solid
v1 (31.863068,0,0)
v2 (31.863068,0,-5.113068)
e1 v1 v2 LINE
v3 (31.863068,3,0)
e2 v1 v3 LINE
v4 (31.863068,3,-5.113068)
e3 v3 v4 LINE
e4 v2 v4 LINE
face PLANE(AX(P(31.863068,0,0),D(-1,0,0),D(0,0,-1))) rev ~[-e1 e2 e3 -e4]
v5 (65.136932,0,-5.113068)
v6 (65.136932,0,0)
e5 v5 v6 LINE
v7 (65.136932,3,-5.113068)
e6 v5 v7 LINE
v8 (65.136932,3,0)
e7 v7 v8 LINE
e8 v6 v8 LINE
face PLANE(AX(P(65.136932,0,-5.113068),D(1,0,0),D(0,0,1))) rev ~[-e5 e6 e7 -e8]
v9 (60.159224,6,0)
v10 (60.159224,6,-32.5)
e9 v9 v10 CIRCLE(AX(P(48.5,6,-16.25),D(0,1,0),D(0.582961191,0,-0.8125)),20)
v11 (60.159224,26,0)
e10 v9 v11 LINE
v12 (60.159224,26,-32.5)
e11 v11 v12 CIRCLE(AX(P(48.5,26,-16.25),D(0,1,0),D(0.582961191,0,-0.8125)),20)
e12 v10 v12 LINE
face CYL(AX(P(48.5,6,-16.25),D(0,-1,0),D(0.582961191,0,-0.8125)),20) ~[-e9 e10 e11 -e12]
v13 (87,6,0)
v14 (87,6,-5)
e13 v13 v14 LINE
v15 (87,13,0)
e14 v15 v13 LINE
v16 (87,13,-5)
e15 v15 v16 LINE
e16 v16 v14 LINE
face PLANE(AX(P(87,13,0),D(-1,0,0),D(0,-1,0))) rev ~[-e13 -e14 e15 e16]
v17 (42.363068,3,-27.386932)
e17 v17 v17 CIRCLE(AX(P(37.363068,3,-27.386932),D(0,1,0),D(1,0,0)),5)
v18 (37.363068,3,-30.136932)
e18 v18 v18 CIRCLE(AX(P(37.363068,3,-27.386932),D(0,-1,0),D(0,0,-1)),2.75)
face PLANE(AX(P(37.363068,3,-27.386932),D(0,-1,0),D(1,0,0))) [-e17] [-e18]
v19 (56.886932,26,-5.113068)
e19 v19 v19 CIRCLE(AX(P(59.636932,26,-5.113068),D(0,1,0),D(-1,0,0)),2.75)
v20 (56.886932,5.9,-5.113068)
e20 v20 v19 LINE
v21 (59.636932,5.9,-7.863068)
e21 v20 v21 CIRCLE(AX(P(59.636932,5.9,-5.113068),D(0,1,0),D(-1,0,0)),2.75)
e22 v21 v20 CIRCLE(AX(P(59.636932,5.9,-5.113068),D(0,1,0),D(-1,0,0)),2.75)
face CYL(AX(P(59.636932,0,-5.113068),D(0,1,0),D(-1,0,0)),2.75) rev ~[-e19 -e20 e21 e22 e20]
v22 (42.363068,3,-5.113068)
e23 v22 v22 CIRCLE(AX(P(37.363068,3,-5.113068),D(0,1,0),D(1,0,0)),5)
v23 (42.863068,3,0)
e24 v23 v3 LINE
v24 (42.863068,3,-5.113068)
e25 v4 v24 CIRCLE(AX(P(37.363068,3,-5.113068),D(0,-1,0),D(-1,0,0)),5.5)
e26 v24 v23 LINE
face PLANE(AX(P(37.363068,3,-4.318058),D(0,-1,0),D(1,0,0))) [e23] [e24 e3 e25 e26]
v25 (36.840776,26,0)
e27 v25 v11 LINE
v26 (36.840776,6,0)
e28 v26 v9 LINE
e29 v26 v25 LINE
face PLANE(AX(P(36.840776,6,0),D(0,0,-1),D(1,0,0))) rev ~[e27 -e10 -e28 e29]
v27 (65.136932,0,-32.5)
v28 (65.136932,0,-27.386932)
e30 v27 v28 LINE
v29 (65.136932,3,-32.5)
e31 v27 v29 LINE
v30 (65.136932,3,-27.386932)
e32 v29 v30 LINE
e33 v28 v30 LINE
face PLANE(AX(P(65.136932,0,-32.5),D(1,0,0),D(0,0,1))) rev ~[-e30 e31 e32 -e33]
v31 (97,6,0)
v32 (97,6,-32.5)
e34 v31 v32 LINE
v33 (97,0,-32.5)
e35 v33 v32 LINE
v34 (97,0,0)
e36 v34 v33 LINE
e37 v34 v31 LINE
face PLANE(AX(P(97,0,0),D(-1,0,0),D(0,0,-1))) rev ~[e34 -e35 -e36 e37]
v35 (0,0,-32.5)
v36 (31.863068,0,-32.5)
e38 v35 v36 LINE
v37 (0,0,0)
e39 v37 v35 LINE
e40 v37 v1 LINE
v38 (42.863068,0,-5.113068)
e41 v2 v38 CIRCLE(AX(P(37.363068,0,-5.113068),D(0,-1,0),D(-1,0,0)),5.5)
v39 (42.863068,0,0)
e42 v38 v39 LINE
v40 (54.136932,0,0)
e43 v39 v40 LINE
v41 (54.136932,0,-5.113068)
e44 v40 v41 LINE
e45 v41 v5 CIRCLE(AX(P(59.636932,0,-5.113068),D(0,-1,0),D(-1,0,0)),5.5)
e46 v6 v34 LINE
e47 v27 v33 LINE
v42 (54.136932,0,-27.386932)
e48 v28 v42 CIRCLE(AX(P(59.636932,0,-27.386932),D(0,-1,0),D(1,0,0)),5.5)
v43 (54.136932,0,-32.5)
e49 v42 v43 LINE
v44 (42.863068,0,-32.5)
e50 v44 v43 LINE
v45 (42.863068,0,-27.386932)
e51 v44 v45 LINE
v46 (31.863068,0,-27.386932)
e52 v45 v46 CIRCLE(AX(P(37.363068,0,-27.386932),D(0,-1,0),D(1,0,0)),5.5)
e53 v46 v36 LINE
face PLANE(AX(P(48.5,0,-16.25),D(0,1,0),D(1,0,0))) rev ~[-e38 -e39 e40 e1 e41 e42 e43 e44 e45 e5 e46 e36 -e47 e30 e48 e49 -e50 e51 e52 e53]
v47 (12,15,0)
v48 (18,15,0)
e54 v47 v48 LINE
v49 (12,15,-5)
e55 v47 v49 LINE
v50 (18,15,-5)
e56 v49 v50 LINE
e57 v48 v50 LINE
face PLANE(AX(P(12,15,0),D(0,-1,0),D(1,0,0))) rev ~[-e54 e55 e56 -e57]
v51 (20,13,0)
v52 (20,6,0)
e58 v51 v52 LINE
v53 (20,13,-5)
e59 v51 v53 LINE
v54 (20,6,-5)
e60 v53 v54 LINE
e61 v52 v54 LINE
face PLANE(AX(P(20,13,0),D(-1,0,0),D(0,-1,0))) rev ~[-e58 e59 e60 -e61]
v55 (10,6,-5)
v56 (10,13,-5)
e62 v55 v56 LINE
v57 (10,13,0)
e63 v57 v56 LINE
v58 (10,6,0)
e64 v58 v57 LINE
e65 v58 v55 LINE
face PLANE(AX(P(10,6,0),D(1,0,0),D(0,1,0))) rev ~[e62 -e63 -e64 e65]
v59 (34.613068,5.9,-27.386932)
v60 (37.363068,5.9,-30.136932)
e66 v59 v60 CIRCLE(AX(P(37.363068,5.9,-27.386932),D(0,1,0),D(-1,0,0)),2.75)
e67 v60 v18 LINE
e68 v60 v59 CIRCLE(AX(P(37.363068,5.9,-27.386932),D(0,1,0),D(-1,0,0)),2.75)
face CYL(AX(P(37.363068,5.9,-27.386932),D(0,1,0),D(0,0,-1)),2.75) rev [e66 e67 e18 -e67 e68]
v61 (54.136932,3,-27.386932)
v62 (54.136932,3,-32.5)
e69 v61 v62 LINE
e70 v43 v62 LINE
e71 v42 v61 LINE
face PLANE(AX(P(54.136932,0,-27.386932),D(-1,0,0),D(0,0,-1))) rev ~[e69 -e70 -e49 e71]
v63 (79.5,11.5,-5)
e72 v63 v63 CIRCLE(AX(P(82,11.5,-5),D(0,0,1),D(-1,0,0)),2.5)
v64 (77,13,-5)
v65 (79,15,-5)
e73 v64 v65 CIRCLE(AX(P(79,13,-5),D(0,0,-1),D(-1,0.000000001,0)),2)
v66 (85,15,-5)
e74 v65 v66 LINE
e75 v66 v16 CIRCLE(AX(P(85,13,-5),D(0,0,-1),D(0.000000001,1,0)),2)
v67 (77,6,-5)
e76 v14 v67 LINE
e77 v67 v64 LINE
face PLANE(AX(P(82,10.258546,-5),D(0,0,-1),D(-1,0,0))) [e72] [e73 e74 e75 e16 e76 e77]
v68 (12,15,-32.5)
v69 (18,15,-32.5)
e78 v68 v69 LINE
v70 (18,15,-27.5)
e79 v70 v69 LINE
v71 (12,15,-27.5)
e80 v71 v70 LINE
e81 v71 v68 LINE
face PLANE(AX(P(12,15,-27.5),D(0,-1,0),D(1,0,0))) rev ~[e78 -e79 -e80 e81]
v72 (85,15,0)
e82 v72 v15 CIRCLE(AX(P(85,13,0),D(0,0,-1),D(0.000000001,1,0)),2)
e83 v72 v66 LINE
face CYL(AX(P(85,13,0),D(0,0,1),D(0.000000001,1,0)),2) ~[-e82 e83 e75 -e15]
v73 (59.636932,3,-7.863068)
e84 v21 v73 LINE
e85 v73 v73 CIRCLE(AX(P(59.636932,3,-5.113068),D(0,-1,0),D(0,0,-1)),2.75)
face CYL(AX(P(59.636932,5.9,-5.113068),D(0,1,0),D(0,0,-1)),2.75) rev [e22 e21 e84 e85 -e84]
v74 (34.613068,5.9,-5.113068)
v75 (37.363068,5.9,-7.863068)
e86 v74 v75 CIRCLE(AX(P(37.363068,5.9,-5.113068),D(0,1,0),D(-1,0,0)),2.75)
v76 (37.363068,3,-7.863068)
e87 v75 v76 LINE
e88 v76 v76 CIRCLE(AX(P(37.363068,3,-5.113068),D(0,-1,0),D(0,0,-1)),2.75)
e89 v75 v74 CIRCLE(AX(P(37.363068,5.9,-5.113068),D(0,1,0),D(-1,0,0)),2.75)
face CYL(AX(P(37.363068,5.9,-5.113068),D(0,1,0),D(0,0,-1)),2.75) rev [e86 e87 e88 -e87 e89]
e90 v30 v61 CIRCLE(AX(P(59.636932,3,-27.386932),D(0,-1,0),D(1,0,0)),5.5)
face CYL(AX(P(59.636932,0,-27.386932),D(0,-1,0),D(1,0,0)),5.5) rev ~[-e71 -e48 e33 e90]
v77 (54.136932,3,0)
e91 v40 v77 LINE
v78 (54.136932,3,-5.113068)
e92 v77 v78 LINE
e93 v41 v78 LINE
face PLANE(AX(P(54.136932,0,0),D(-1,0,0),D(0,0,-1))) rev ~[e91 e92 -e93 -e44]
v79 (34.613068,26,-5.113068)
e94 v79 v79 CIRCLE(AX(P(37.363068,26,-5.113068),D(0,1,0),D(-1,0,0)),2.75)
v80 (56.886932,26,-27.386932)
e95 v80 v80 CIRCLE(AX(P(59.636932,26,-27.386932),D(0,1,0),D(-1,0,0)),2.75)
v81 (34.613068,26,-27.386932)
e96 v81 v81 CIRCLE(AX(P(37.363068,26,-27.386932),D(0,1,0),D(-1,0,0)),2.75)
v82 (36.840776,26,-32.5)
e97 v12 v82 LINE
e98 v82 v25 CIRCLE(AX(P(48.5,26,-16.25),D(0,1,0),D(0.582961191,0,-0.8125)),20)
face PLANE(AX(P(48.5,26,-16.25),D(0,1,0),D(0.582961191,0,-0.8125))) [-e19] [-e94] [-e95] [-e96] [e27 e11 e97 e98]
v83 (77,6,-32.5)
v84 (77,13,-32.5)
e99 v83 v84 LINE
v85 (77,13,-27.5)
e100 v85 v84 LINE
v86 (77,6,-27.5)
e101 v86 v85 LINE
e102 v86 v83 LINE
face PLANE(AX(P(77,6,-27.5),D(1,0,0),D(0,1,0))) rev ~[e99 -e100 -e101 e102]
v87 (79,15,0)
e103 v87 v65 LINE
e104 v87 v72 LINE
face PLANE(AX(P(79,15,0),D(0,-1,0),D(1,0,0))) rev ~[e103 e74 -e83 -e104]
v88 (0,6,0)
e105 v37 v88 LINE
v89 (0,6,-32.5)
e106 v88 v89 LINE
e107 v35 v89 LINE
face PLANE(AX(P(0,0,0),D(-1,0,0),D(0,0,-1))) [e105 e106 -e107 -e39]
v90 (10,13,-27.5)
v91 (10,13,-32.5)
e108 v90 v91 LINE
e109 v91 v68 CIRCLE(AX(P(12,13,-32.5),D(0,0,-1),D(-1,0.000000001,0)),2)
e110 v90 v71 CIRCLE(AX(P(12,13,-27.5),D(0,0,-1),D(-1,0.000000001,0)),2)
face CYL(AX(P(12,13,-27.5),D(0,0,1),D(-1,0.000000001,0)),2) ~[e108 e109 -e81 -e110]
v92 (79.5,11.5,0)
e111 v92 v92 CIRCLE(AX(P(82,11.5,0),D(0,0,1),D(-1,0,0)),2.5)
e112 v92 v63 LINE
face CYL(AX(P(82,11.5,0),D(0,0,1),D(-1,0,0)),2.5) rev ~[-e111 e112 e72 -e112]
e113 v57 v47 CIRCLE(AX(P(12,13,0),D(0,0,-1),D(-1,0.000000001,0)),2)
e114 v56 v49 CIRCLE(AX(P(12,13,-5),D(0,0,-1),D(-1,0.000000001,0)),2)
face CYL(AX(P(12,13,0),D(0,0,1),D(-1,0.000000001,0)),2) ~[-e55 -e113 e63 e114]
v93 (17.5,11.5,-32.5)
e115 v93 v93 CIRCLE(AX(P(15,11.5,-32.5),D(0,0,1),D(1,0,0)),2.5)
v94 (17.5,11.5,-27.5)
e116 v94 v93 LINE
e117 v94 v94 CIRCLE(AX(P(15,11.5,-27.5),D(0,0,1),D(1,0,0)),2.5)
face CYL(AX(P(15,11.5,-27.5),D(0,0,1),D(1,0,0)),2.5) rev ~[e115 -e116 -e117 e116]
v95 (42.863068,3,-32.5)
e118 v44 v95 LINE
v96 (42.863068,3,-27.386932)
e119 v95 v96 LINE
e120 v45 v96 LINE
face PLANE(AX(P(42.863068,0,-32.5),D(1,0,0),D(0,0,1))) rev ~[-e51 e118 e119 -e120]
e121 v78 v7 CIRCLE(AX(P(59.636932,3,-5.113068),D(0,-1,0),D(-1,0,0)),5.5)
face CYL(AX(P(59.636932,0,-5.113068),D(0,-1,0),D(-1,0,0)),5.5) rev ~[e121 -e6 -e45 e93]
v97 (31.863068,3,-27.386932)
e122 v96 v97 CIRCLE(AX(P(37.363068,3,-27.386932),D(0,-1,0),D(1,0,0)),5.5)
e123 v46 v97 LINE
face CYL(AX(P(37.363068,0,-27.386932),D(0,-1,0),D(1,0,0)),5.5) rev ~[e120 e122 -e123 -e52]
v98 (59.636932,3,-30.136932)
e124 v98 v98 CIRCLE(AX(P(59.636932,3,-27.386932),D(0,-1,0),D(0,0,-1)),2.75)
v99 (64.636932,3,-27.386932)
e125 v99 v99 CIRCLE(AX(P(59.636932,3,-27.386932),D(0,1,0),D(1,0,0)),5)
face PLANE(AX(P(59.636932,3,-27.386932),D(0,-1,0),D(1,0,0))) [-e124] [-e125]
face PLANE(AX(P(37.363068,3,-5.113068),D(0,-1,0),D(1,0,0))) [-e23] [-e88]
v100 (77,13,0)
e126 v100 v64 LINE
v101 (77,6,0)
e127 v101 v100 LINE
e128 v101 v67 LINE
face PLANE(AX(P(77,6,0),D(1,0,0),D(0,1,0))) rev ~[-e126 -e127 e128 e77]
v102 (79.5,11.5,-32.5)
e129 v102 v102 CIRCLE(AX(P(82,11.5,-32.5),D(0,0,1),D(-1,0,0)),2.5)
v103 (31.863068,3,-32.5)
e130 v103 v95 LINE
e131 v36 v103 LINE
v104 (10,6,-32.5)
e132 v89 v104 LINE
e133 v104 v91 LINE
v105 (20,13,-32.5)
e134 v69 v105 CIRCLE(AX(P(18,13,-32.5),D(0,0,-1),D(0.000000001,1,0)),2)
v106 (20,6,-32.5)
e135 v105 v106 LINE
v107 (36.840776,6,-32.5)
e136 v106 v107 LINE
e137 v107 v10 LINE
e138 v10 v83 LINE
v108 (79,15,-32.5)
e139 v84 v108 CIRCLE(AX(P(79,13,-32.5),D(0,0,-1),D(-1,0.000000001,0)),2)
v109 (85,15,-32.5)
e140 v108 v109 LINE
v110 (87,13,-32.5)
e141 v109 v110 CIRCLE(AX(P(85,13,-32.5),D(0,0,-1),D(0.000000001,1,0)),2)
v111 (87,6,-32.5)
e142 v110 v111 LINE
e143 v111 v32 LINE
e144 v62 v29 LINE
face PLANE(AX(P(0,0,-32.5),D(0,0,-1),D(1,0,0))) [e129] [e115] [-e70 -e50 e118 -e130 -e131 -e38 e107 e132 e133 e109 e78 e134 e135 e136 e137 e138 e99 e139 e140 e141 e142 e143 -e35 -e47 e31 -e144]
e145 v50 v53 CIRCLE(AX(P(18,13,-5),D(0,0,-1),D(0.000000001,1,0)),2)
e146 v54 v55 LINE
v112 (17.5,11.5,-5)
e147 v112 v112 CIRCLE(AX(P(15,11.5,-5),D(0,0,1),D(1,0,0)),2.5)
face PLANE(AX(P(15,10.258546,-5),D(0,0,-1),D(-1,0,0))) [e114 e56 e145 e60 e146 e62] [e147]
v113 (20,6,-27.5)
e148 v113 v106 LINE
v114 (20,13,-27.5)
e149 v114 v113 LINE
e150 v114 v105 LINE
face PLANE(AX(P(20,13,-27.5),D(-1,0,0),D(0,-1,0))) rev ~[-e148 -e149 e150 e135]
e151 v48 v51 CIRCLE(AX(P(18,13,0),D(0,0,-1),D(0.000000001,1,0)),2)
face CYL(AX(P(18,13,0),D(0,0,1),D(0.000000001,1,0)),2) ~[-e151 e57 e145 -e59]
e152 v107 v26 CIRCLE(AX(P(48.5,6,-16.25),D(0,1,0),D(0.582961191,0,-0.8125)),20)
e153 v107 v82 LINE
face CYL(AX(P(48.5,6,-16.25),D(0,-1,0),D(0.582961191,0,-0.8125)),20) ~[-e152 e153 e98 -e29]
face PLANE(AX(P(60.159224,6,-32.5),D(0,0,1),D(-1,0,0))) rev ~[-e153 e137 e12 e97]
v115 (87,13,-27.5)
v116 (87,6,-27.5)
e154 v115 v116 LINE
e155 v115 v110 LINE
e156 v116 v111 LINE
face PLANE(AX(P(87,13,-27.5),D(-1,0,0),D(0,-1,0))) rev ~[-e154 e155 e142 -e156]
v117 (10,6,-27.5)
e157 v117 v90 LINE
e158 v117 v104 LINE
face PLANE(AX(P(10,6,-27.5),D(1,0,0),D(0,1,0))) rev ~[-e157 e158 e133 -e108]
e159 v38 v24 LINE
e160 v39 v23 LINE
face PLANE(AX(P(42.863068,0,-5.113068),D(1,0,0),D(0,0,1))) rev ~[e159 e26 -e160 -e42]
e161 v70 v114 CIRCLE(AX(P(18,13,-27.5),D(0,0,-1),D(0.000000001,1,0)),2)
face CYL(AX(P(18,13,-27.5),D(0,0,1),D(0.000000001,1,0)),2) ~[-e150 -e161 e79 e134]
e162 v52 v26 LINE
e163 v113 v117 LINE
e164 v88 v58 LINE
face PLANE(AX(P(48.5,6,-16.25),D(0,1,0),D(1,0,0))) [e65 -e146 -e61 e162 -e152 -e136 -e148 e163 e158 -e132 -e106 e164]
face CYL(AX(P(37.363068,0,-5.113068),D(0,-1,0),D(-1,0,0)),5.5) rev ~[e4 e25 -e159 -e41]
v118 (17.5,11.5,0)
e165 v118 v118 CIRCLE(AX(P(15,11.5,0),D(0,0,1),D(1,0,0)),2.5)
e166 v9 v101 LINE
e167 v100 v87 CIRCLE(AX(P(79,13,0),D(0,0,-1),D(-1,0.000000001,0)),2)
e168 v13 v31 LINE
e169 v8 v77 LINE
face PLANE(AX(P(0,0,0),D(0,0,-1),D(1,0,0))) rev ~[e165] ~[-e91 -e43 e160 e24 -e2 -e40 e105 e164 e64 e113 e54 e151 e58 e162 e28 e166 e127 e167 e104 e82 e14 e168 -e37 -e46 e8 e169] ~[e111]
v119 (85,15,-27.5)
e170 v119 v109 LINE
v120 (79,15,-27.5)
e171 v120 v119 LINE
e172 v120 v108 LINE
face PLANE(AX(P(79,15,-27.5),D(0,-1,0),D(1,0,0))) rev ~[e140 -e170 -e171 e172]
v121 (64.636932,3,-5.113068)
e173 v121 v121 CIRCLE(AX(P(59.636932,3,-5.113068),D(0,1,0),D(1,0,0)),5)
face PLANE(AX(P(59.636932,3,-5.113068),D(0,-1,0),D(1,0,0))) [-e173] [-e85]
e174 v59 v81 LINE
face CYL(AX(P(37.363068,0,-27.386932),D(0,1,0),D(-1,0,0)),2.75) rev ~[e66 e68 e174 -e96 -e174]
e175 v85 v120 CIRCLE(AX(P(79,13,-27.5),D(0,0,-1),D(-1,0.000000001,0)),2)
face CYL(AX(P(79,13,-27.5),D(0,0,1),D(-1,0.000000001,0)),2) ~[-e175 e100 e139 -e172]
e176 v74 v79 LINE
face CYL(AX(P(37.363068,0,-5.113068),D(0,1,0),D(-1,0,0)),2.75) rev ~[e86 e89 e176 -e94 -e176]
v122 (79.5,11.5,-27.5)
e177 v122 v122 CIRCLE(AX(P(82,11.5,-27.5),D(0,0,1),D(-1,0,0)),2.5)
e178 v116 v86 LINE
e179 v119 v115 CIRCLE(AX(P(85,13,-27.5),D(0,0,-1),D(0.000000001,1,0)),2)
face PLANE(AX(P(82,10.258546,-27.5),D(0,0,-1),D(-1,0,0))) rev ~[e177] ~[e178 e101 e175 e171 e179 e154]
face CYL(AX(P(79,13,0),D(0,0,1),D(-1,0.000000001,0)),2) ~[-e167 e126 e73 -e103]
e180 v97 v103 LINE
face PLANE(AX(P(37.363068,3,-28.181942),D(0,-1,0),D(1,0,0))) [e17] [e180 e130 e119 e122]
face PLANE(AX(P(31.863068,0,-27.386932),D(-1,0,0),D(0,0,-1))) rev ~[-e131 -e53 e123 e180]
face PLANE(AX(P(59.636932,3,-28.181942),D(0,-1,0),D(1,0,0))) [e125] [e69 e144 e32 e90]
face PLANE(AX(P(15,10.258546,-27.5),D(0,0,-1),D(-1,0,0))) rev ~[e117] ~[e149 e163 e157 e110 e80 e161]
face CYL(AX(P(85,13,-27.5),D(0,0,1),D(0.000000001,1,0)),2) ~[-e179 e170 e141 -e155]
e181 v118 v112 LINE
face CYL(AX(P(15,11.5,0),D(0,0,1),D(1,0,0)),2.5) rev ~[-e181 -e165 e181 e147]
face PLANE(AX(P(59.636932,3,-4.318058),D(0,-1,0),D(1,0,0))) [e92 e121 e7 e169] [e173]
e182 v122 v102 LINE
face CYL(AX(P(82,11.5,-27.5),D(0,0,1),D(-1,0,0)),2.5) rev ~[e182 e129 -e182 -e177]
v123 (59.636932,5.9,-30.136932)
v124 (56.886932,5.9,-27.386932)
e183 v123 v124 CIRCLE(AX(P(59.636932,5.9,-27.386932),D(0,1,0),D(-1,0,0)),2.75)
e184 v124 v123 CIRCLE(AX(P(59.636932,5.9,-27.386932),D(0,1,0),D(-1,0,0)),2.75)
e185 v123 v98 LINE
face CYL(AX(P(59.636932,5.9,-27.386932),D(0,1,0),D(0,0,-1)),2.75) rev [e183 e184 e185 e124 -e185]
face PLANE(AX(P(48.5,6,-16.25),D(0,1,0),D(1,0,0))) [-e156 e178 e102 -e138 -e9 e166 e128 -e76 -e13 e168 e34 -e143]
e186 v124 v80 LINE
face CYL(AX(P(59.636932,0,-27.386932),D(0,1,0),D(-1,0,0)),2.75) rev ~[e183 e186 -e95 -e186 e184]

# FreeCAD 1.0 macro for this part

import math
import FreeCAD as App
import Part
import Sketcher
Q = App.Units.Quantity

doc = App.newDocument("Part")
params = doc.addObject("Spreadsheet::Sheet", "Params")
for row, (alias, value) in enumerate([
    ("sketch1_width", "97 mm"),
    ("sketch1_height", "32.5 mm"),
    ("pad1_length", "6 mm"),
    ("sketch2_diameter", "40 mm"),
    ("pad2_length", "20 mm"),
    ("sketch3_diameter", "5.5 mm"),
    ("hole_diameter", "5.5 mm"),
    ("hole_cbore_diameter", "10 mm"),
    ("hole_cbore_depth", "5.9 mm"),
    ("sketch4_diameter", "5 mm"),
    ("sketch4_radius", "2 mm"),
    ("sketch4_width", "10 mm"),
    ("sketch4_height", "7 mm"),
    ("pad3_length", "5 mm"),
    ("sketch5_diameter", "5 mm"),
    ("sketch5_radius", "2 mm"),
    ("sketch5_width", "10 mm"),
    ("sketch5_height", "7 mm"),
    ("pad4_length", "5 mm"),
    ("sketch6_radius", "5.5 mm"),
    ("pocket1_length", "3 mm"),
    ("sketch7_diameter", "10 mm"),
    ("sketch7_diameter2", "5.5 mm"),
    ("pad5_length", "2.9 mm"),
    ("sketch8_radius", "20 mm"),
    ("pocket2_length", "20 mm"),
], start=1):
    params.set(f"A{row}", alias)
    params.set(f"B{row}", "=" + value)
    params.setAlias(f"B{row}", alias)

body = doc.addObject("PartDesign::Body", "Body")

sketch1 = body.newObject("Sketcher::SketchObject", "Sketch")
sketch1.AttachmentSupport = (doc.getObject("XZ_Plane"), [""])
sketch1.MapMode = "FlatFace"
sketch1.addGeometry(Part.LineSegment(App.Vector(0, -32, 0), App.Vector(0, 0, 0)), False)
sketch1.addGeometry(Part.LineSegment(App.Vector(0, 0, 0), App.Vector(97, 0, 0)), False)
sketch1.addGeometry(Part.LineSegment(App.Vector(97, 0, 0), App.Vector(97, -32, 0)), False)
sketch1.addGeometry(Part.LineSegment(App.Vector(97, -32, 0), App.Vector(0, -32, 0)), False)
sketch1.addConstraint(Sketcher.Constraint("Coincident", 0, 2, 1, 1))
sketch1.addConstraint(Sketcher.Constraint("Coincident", 1, 2, 2, 1))
sketch1.addConstraint(Sketcher.Constraint("Coincident", 2, 2, 3, 1))
sketch1.addConstraint(Sketcher.Constraint("Coincident", 3, 2, 0, 1))
sketch1.addConstraint(Sketcher.Constraint("Vertical", 0))
sketch1.addConstraint(Sketcher.Constraint("Horizontal", 1))
sketch1.addConstraint(Sketcher.Constraint("Vertical", 2))
sketch1.addConstraint(Sketcher.Constraint("Horizontal", 3))
sketch1.addConstraint(Sketcher.Constraint("Coincident", 0, 2, -1, 1))
sketch1.addConstraint(Sketcher.Constraint("DistanceX", 1, 1, 1, 2, Q("97 mm")))
sketch1.addConstraint(Sketcher.Constraint("DistanceY", 0, 1, 0, 2, Q("32.5 mm")))
sketch1.setExpression("Constraints[9]", "Params.sketch1_width")
sketch1.setExpression("Constraints[10]", "Params.sketch1_height")
pad1 = body.newObject("PartDesign::Pad", "Pad")
pad1.Profile = sketch1
pad1.setExpression("Length", "Params.pad1_length")
pad1.Reversed = True

sketch2 = body.newObject("Sketcher::SketchObject", "Sketch001")
sketch2.AttachmentSupport = (doc.getObject("XZ_Plane"), [""])
sketch2.MapMode = "FlatFace"
sketch2.AttachmentOffset = App.Placement(App.Vector(0, 0, -6), App.Rotation())
sketch2.addGeometry(Part.Circle(App.Vector(48, -16, 0), App.Vector(0, 0, 1), 20), False)
sketch2.addConstraint(Sketcher.Constraint("Diameter", 0, Q("40 mm")))
sketch2.addConstraint(Sketcher.Constraint("DistanceX", -1, 1, 0, 3, Q("48.5 mm")))
sketch2.addConstraint(Sketcher.Constraint("DistanceY", 0, 3, -1, 1, Q("16.25 mm")))
sketch2.setExpression("Constraints[0]", "Params.sketch2_diameter")
pad2 = body.newObject("PartDesign::Pad", "Pad001")
pad2.Profile = sketch2
pad2.setExpression("Length", "Params.pad2_length")
pad2.Reversed = True

sketch3 = body.newObject("Sketcher::SketchObject", "Sketch002")
sketch3.AttachmentSupport = (doc.getObject("XZ_Plane"), [""])
sketch3.MapMode = "FlatFace"
sketch3.addGeometry(Part.Circle(App.Vector(37.4, -5.1, 0), App.Vector(0, 0, 1), 2.8), False)
sketch3.addGeometry(Part.Circle(App.Vector(59.6, -5.1, 0), App.Vector(0, 0, 1), 2.8), False)
sketch3.addGeometry(Part.Circle(App.Vector(59.6, -27.4, 0), App.Vector(0, 0, 1), 2.8), False)
sketch3.addGeometry(Part.Circle(App.Vector(37.4, -27.4, 0), App.Vector(0, 0, 1), 2.8), False)
sketch3.addConstraint(Sketcher.Constraint("Equal", 0, 1))
sketch3.addConstraint(Sketcher.Constraint("Equal", 1, 2))
sketch3.addConstraint(Sketcher.Constraint("Equal", 2, 3))
sketch3.addConstraint(Sketcher.Constraint("Horizontal", 0, 3, 1, 3))
sketch3.addConstraint(Sketcher.Constraint("Horizontal", 2, 3, 3, 3))
sketch3.addConstraint(Sketcher.Constraint("Vertical", 1, 3, 2, 3))
sketch3.addConstraint(Sketcher.Constraint("Vertical", 0, 3, 3, 3))
sketch3.addConstraint(Sketcher.Constraint("Diameter", 0, Q("5.5 mm")))
sketch3.addConstraint(Sketcher.Constraint("DistanceX", -1, 1, 0, 3, Q("37.363068 mm")))
sketch3.addConstraint(Sketcher.Constraint("DistanceY", 0, 3, -1, 1, Q("5.113068 mm")))
sketch3.addConstraint(Sketcher.Constraint("DistanceX", -1, 1, 1, 3, Q("59.636932 mm")))
sketch3.addConstraint(Sketcher.Constraint("DistanceY", 2, 3, -1, 1, Q("27.386932 mm")))
sketch3.setExpression("Constraints[7]", "Params.sketch3_diameter")
doc.recompute()
hole = body.newObject("PartDesign::Hole", "Hole")
hole.Profile = sketch3
hole.ThreadType = "None"
hole.setExpression("Diameter", "Params.hole_diameter")
hole.DepthType = "ThroughAll"
hole.HoleCutType = "Counterbore"
hole.setExpression("HoleCutDiameter", "Params.hole_cbore_diameter")
hole.setExpression("HoleCutDepth", "Params.hole_cbore_depth")

sketch4 = body.newObject("Sketcher::SketchObject", "Sketch003")
sketch4.AttachmentSupport = (doc.getObject("XY_Plane"), [""])
sketch4.MapMode = "FlatFace"
sketch4.addGeometry(Part.LineSegment(App.Vector(77, 6, 0), App.Vector(87, 6, 0)), False)
sketch4.addGeometry(Part.LineSegment(App.Vector(87, 6, 0), App.Vector(87, 13, 0)), False)
sketch4.addGeometry(Part.ArcOfCircle(Part.Circle(App.Vector(85, 13, 0), App.Vector(0, 0, 1), 2), math.radians(0), math.radians(90)), False)
sketch4.addGeometry(Part.LineSegment(App.Vector(85, 15, 0), App.Vector(79, 15, 0)), False)
sketch4.addGeometry(Part.ArcOfCircle(Part.Circle(App.Vector(79, 13, 0), App.Vector(0, 0, 1), 2), math.radians(90), math.radians(180)), False)
sketch4.addGeometry(Part.LineSegment(App.Vector(77, 13, 0), App.Vector(77, 6, 0)), False)
sketch4.addGeometry(Part.Circle(App.Vector(82, 11.5, 0), App.Vector(0, 0, 1), 2.5), False)
sketch4.addGeometry(Part.LineSegment(App.Vector(10, 13, 0), App.Vector(10, 6, 0)), False)
sketch4.addGeometry(Part.LineSegment(App.Vector(10, 6, 0), App.Vector(20, 6, 0)), False)
sketch4.addGeometry(Part.LineSegment(App.Vector(20, 6, 0), App.Vector(20, 13, 0)), False)
sketch4.addGeometry(Part.ArcOfCircle(Part.Circle(App.Vector(18, 13, 0), App.Vector(0, 0, 1), 2), math.radians(0), math.radians(90)), False)
sketch4.addGeometry(Part.LineSegment(App.Vector(18, 15, 0), App.Vector(12, 15, 0)), False)
sketch4.addGeometry(Part.ArcOfCircle(Part.Circle(App.Vector(12, 13, 0), App.Vector(0, 0, 1), 2), math.radians(90), math.radians(180)), False)
sketch4.addGeometry(Part.Circle(App.Vector(15, 11.5, 0), App.Vector(0, 0, 1), 2.5), False)
sketch4.addConstraint(Sketcher.Constraint("Coincident", 0, 2, 1, 1))
sketch4.addConstraint(Sketcher.Constraint("Tangent", 1, 2, 2, 1))
sketch4.addConstraint(Sketcher.Constraint("Tangent", 2, 2, 3, 1))
sketch4.addConstraint(Sketcher.Constraint("Tangent", 3, 2, 4, 1))
sketch4.addConstraint(Sketcher.Constraint("Tangent", 4, 2, 5, 1))
sketch4.addConstraint(Sketcher.Constraint("Coincident", 5, 2, 0, 1))
sketch4.addConstraint(Sketcher.Constraint("Coincident", 7, 2, 8, 1))
sketch4.addConstraint(Sketcher.Constraint("Coincident", 8, 2, 9, 1))
sketch4.addConstraint(Sketcher.Constraint("Tangent", 9, 2, 10, 1))
sketch4.addConstraint(Sketcher.Constraint("Tangent", 10, 2, 11, 1))
sketch4.addConstraint(Sketcher.Constraint("Tangent", 11, 2, 12, 1))
sketch4.addConstraint(Sketcher.Constraint("Tangent", 12, 2, 7, 1))
sketch4.addConstraint(Sketcher.Constraint("Horizontal", 0))
sketch4.addConstraint(Sketcher.Constraint("Vertical", 1))
sketch4.addConstraint(Sketcher.Constraint("Horizontal", 3))
sketch4.addConstraint(Sketcher.Constraint("Vertical", 5))
sketch4.addConstraint(Sketcher.Constraint("Vertical", 7))
sketch4.addConstraint(Sketcher.Constraint("Horizontal", 8))
sketch4.addConstraint(Sketcher.Constraint("Vertical", 9))
sketch4.addConstraint(Sketcher.Constraint("Horizontal", 11))
sketch4.addConstraint(Sketcher.Constraint("Equal", 2, 4))
sketch4.addConstraint(Sketcher.Constraint("Equal", 4, 10))
sketch4.addConstraint(Sketcher.Constraint("Equal", 10, 12))
sketch4.addConstraint(Sketcher.Constraint("Equal", 6, 13))
sketch4.addConstraint(Sketcher.Constraint("Horizontal", 4, 3, 10, 3))
sketch4.addConstraint(Sketcher.Constraint("Horizontal", 6, 3, 13, 3))
sketch4.addConstraint(Sketcher.Constraint("Horizontal", 5, 2, 7, 2))
sketch4.addConstraint(Sketcher.Constraint("Equal", 0, 8))
sketch4.addConstraint(Sketcher.Constraint("Diameter", 6, Q("5 mm")))
sketch4.addConstraint(Sketcher.Constraint("Radius", 2, Q("2 mm")))
sketch4.addConstraint(Sketcher.Constraint("DistanceX", 0, 1, 0, 2, Q("10 mm")))
sketch4.addConstraint(Sketcher.Constraint("DistanceY", 1, 1, 1, 2, Q("7 mm")))
sketch4.addConstraint(Sketcher.Constraint("DistanceX", -1, 1, 2, 3, Q("85 mm")))
sketch4.addConstraint(Sketcher.Constraint("DistanceY", -1, 1, 2, 3, Q("13 mm")))
sketch4.addConstraint(Sketcher.Constraint("DistanceX", -1, 1, 6, 3, Q("82 mm")))
sketch4.addConstraint(Sketcher.Constraint("DistanceX", -1, 1, 10, 3, Q("18 mm")))
sketch4.addConstraint(Sketcher.Constraint("DistanceX", -1, 1, 13, 3, Q("15 mm")))
sketch4.addConstraint(Sketcher.Constraint("DistanceY", -1, 1, 6, 3, Q("11.5 mm")))
sketch4.setExpression("Constraints[28]", "Params.sketch4_diameter")
sketch4.setExpression("Constraints[29]", "Params.sketch4_radius")
sketch4.setExpression("Constraints[30]", "Params.sketch4_width")
sketch4.setExpression("Constraints[31]", "Params.sketch4_height")
pad3 = body.newObject("PartDesign::Pad", "Pad002")
pad3.Profile = sketch4
pad3.setExpression("Length", "Params.pad3_length")
pad3.Reversed = True

sketch5 = body.newObject("Sketcher::SketchObject", "Sketch004")
sketch5.AttachmentSupport = (doc.getObject("XY_Plane"), [""])
sketch5.MapMode = "FlatFace"
sketch5.AttachmentOffset = App.Placement(App.Vector(0, 0, -27.5), App.Rotation())
sketch5.addGeometry(Part.LineSegment(App.Vector(77, 6, 0), App.Vector(87, 6, 0)), False)
sketch5.addGeometry(Part.LineSegment(App.Vector(87, 6, 0), App.Vector(87, 13, 0)), False)
sketch5.addGeometry(Part.ArcOfCircle(Part.Circle(App.Vector(85, 13, 0), App.Vector(0, 0, 1), 2), math.radians(0), math.radians(90)), False)
sketch5.addGeometry(Part.LineSegment(App.Vector(85, 15, 0), App.Vector(79, 15, 0)), False)
sketch5.addGeometry(Part.ArcOfCircle(Part.Circle(App.Vector(79, 13, 0), App.Vector(0, 0, 1), 2), math.radians(90), math.radians(180)), False)
sketch5.addGeometry(Part.LineSegment(App.Vector(77, 13, 0), App.Vector(77, 6, 0)), False)
sketch5.addGeometry(Part.Circle(App.Vector(82, 11.5, 0), App.Vector(0, 0, 1), 2.5), False)
sketch5.addGeometry(Part.LineSegment(App.Vector(10, 13, 0), App.Vector(10, 6, 0)), False)
sketch5.addGeometry(Part.LineSegment(App.Vector(10, 6, 0), App.Vector(20, 6, 0)), False)
sketch5.addGeometry(Part.LineSegment(App.Vector(20, 6, 0), App.Vector(20, 13, 0)), False)
sketch5.addGeometry(Part.ArcOfCircle(Part.Circle(App.Vector(18, 13, 0), App.Vector(0, 0, 1), 2), math.radians(0), math.radians(90)), False)
sketch5.addGeometry(Part.LineSegment(App.Vector(18, 15, 0), App.Vector(12, 15, 0)), False)
sketch5.addGeometry(Part.ArcOfCircle(Part.Circle(App.Vector(12, 13, 0), App.Vector(0, 0, 1), 2), math.radians(90), math.radians(180)), False)
sketch5.addGeometry(Part.Circle(App.Vector(15, 11.5, 0), App.Vector(0, 0, 1), 2.5), False)
sketch5.addConstraint(Sketcher.Constraint("Coincident", 0, 2, 1, 1))
sketch5.addConstraint(Sketcher.Constraint("Tangent", 1, 2, 2, 1))
sketch5.addConstraint(Sketcher.Constraint("Tangent", 2, 2, 3, 1))
sketch5.addConstraint(Sketcher.Constraint("Tangent", 3, 2, 4, 1))
sketch5.addConstraint(Sketcher.Constraint("Tangent", 4, 2, 5, 1))
sketch5.addConstraint(Sketcher.Constraint("Coincident", 5, 2, 0, 1))
sketch5.addConstraint(Sketcher.Constraint("Coincident", 7, 2, 8, 1))
sketch5.addConstraint(Sketcher.Constraint("Coincident", 8, 2, 9, 1))
sketch5.addConstraint(Sketcher.Constraint("Tangent", 9, 2, 10, 1))
sketch5.addConstraint(Sketcher.Constraint("Tangent", 10, 2, 11, 1))
sketch5.addConstraint(Sketcher.Constraint("Tangent", 11, 2, 12, 1))
sketch5.addConstraint(Sketcher.Constraint("Tangent", 12, 2, 7, 1))
sketch5.addConstraint(Sketcher.Constraint("Horizontal", 0))
sketch5.addConstraint(Sketcher.Constraint("Vertical", 1))
sketch5.addConstraint(Sketcher.Constraint("Horizontal", 3))
sketch5.addConstraint(Sketcher.Constraint("Vertical", 5))
sketch5.addConstraint(Sketcher.Constraint("Vertical", 7))
sketch5.addConstraint(Sketcher.Constraint("Horizontal", 8))
sketch5.addConstraint(Sketcher.Constraint("Vertical", 9))
sketch5.addConstraint(Sketcher.Constraint("Horizontal", 11))
sketch5.addConstraint(Sketcher.Constraint("Equal", 2, 4))
sketch5.addConstraint(Sketcher.Constraint("Equal", 4, 10))
sketch5.addConstraint(Sketcher.Constraint("Equal", 10, 12))
sketch5.addConstraint(Sketcher.Constraint("Equal", 6, 13))
sketch5.addConstraint(Sketcher.Constraint("Horizontal", 4, 3, 10, 3))
sketch5.addConstraint(Sketcher.Constraint("Horizontal", 6, 3, 13, 3))
sketch5.addConstraint(Sketcher.Constraint("Horizontal", 5, 2, 7, 2))
sketch5.addConstraint(Sketcher.Constraint("Equal", 0, 8))
sketch5.addConstraint(Sketcher.Constraint("Diameter", 6, Q("5 mm")))
sketch5.addConstraint(Sketcher.Constraint("Radius", 2, Q("2 mm")))
sketch5.addConstraint(Sketcher.Constraint("DistanceX", 0, 1, 0, 2, Q("10 mm")))
sketch5.addConstraint(Sketcher.Constraint("DistanceY", 1, 1, 1, 2, Q("7 mm")))
sketch5.addConstraint(Sketcher.Constraint("DistanceX", -1, 1, 2, 3, Q("85 mm")))
sketch5.addConstraint(Sketcher.Constraint("DistanceY", -1, 1, 2, 3, Q("13 mm")))
sketch5.addConstraint(Sketcher.Constraint("DistanceX", -1, 1, 6, 3, Q("82 mm")))
sketch5.addConstraint(Sketcher.Constraint("DistanceX", -1, 1, 10, 3, Q("18 mm")))
sketch5.addConstraint(Sketcher.Constraint("DistanceX", -1, 1, 13, 3, Q("15 mm")))
sketch5.addConstraint(Sketcher.Constraint("DistanceY", -1, 1, 6, 3, Q("11.5 mm")))
sketch5.setExpression("Constraints[28]", "Params.sketch5_diameter")
sketch5.setExpression("Constraints[29]", "Params.sketch5_radius")
sketch5.setExpression("Constraints[30]", "Params.sketch5_width")
sketch5.setExpression("Constraints[31]", "Params.sketch5_height")
pad4 = body.newObject("PartDesign::Pad", "Pad003")
pad4.Profile = sketch5
pad4.setExpression("Length", "Params.pad4_length")
pad4.Reversed = True

sketch6 = body.newObject("Sketcher::SketchObject", "Sketch005")
sketch6.AttachmentSupport = (doc.getObject("XZ_Plane"), [""])
sketch6.MapMode = "FlatFace"
sketch6.addGeometry(Part.ArcOfCircle(Part.Circle(App.Vector(37, -27, 0), App.Vector(0, 0, 1), 6), math.radians(0), math.radians(180)), False)
sketch6.addGeometry(Part.LineSegment(App.Vector(32, -27, 0), App.Vector(32, -32, 0)), False)
sketch6.addGeometry(Part.LineSegment(App.Vector(32, -32, 0), App.Vector(43, -32, 0)), False)
sketch6.addGeometry(Part.LineSegment(App.Vector(43, -32, 0), App.Vector(43, -27, 0)), False)
sketch6.addGeometry(Part.LineSegment(App.Vector(54, -27, 0), App.Vector(54, -32, 0)), False)
sketch6.addGeometry(Part.LineSegment(App.Vector(54, -32, 0), App.Vector(65, -32, 0)), False)
sketch6.addGeometry(Part.LineSegment(App.Vector(65, -32, 0), App.Vector(65, -27, 0)), False)
sketch6.addGeometry(Part.ArcOfCircle(Part.Circle(App.Vector(60, -27, 0), App.Vector(0, 0, 1), 6), math.radians(0), math.radians(180)), False)
sketch6.addGeometry(Part.LineSegment(App.Vector(54, 0, 0), App.Vector(54, -5, 0)), False)
sketch6.addGeometry(Part.ArcOfCircle(Part.Circle(App.Vector(60, -5, 0), App.Vector(0, 0, 1), 6), math.radians(180), math.radians(360)), False)
sketch6.addGeometry(Part.LineSegment(App.Vector(65, -5, 0), App.Vector(65, 0, 0)), False)
sketch6.addGeometry(Part.LineSegment(App.Vector(65, 0, 0), App.Vector(54, 0, 0)), False)
sketch6.addGeometry(Part.LineSegment(App.Vector(43, -5, 0), App.Vector(43, 0, 0)), False)
sketch6.addGeometry(Part.LineSegment(App.Vector(43, 0, 0), App.Vector(32, 0, 0)), False)
sketch6.addGeometry(Part.LineSegment(App.Vector(32, 0, 0), App.Vector(32, -5, 0)), False)
sketch6.addGeometry(Part.ArcOfCircle(Part.Circle(App.Vector(37, -5, 0), App.Vector(0, 0, 1), 6), math.radians(180), math.radians(360)), False)
sketch6.addConstraint(Sketcher.Constraint("Tangent", 0, 2, 1, 1))
sketch6.addConstraint(Sketcher.Constraint("Coincident", 1, 2, 2, 1))
sketch6.addConstraint(Sketcher.Constraint("Coincident", 2, 2, 3, 1))
sketch6.addConstraint(Sketcher.Constraint("Tangent", 3, 2, 0, 1))
sketch6.addConstraint(Sketcher.Constraint("Coincident", 4, 2, 5, 1))
sketch6.addConstraint(Sketcher.Constraint("Coincident", 5, 2, 6, 1))
sketch6.addConstraint(Sketcher.Constraint("Tangent", 6, 2, 7, 1))
sketch6.addConstraint(Sketcher.Constraint("Tangent", 7, 2, 4, 1))
sketch6.addConstraint(Sketcher.Constraint("Tangent", 8, 2, 9, 1))
sketch6.addConstraint(Sketcher.Constraint("Tangent", 9, 2, 10, 1))
sketch6.addConstraint(Sketcher.Constraint("Coincident", 10, 2, 11, 1))
sketch6.addConstraint(Sketcher.Constraint("Coincident", 11, 2, 8, 1))
sketch6.addConstraint(Sketcher.Constraint("Coincident", 12, 2, 13, 1))
sketch6.addConstraint(Sketcher.Constraint("Coincident", 13, 2, 14, 1))
sketch6.addConstraint(Sketcher.Constraint("Tangent", 14, 2, 15, 1))
sketch6.addConstraint(Sketcher.Constraint("Tangent", 15, 2, 12, 1))
sketch6.addConstraint(Sketcher.Constraint("Vertical", 1))
sketch6.addConstraint(Sketcher.Constraint("Horizontal", 2))
sketch6.addConstraint(Sketcher.Constraint("Vertical", 3))
sketch6.addConstraint(Sketcher.Constraint("Vertical", 4))
sketch6.addConstraint(Sketcher.Constraint("Horizontal", 5))
sketch6.addConstraint(Sketcher.Constraint("Vertical", 6))
sketch6.addConstraint(Sketcher.Constraint("Vertical", 8))
sketch6.addConstraint(Sketcher.Constraint("Vertical", 10))
sketch6.addConstraint(Sketcher.Constraint("Horizontal", 11))
sketch6.addConstraint(Sketcher.Constraint("Vertical", 12))
sketch6.addConstraint(Sketcher.Constraint("Horizontal", 13))
sketch6.addConstraint(Sketcher.Constraint("Vertical", 14))
sketch6.addConstraint(Sketcher.Constraint("Equal", 0, 7))
sketch6.addConstraint(Sketcher.Constraint("Equal", 7, 9))
sketch6.addConstraint(Sketcher.Constraint("Equal", 9, 15))
sketch6.addConstraint(Sketcher.Constraint("PointOnObject", 10, 2, -1))
sketch6.addConstraint(Sketcher.Constraint("PointOnObject", 12, 2, -1))
sketch6.addConstraint(Sketcher.Constraint("Horizontal", 0, 3, 7, 3))
sketch6.addConstraint(Sketcher.Constraint("Horizontal", 9, 3, 15, 3))
sketch6.addConstraint(Sketcher.Constraint("Horizontal", 2, 2, 4, 2))
sketch6.addConstraint(Sketcher.Constraint("Vertical", 7, 3, 9, 3))
sketch6.addConstraint(Sketcher.Constraint("Vertical", 0, 3, 15, 3))
sketch6.addConstraint(Sketcher.Constraint("Equal", 6, 8))
sketch6.addConstraint(Sketcher.Constraint("Radius", 0, Q("5.5 mm")))
sketch6.addConstraint(Sketcher.Constraint("DistanceY", 1, 2, -1, 1, Q("32.5 mm")))
sketch6.addConstraint(Sketcher.Constraint("DistanceY", 1, 2, 1, 1, Q("5.113068 mm")))
sketch6.addConstraint(Sketcher.Constraint("DistanceX", -1, 1, 0, 3, Q("37.363068 mm")))
sketch6.addConstraint(Sketcher.Constraint("DistanceX", -1, 1, 7, 3, Q("59.636932 mm")))
sketch6.setExpression("Constraints[39]", "Params.sketch6_radius")
pocket1 = body.newObject("PartDesign::Pocket", "Pocket")
pocket1.Profile = sketch6
pocket1.setExpression("Length", "Params.pocket1_length")

sketch7 = body.newObject("Sketcher::SketchObject", "Sketch006")
sketch7.AttachmentSupport = (doc.getObject("XZ_Plane"), [""])
sketch7.MapMode = "FlatFace"
sketch7.AttachmentOffset = App.Placement(App.Vector(0, 0, -5.9), App.Rotation())
sketch7.addGeometry(Part.Circle(App.Vector(37.4, -27.4, 0), App.Vector(0, 0, 1), 5), False)
sketch7.addGeometry(Part.Circle(App.Vector(37.4, -27.4, 0), App.Vector(0, 0, 1), 2.8), False)
sketch7.addGeometry(Part.Circle(App.Vector(37.4, -5.1, 0), App.Vector(0, 0, 1), 5), False)
sketch7.addGeometry(Part.Circle(App.Vector(37.4, -5.1, 0), App.Vector(0, 0, 1), 2.8), False)
sketch7.addGeometry(Part.Circle(App.Vector(59.6, -5.1, 0), App.Vector(0, 0, 1), 5), False)
sketch7.addGeometry(Part.Circle(App.Vector(59.6, -5.1, 0), App.Vector(0, 0, 1), 2.8), False)
sketch7.addGeometry(Part.Circle(App.Vector(59.6, -27.4, 0), App.Vector(0, 0, 1), 5), False)
sketch7.addGeometry(Part.Circle(App.Vector(59.6, -27.4, 0), App.Vector(0, 0, 1), 2.8), False)
sketch7.addConstraint(Sketcher.Constraint("Coincident", 1, 3, 0, 3))
sketch7.addConstraint(Sketcher.Constraint("Coincident", 3, 3, 2, 3))
sketch7.addConstraint(Sketcher.Constraint("Coincident", 5, 3, 4, 3))
sketch7.addConstraint(Sketcher.Constraint("Coincident", 7, 3, 6, 3))
sketch7.addConstraint(Sketcher.Constraint("Equal", 0, 2))
sketch7.addConstraint(Sketcher.Constraint("Equal", 1, 3))
sketch7.addConstraint(Sketcher.Constraint("Equal", 2, 4))
sketch7.addConstraint(Sketcher.Constraint("Equal", 3, 5))
sketch7.addConstraint(Sketcher.Constraint("Equal", 4, 6))
sketch7.addConstraint(Sketcher.Constraint("Equal", 5, 7))
sketch7.addConstraint(Sketcher.Constraint("Horizontal", 3, 3, 4, 3))
sketch7.addConstraint(Sketcher.Constraint("Horizontal", 1, 3, 6, 3))
sketch7.addConstraint(Sketcher.Constraint("Vertical", 1, 3, 2, 3))
sketch7.addConstraint(Sketcher.Constraint("Vertical", 5, 3, 6, 3))
sketch7.addConstraint(Sketcher.Constraint("Diameter", 0, Q("10 mm")))
sketch7.addConstraint(Sketcher.Constraint("Diameter", 1, Q("5.5 mm")))
sketch7.addConstraint(Sketcher.Constraint("DistanceX", -1, 1, 0, 3, Q("37.363068 mm")))
sketch7.addConstraint(Sketcher.Constraint("DistanceY", 0, 3, -1, 1, Q("27.386932 mm")))
sketch7.addConstraint(Sketcher.Constraint("DistanceY", 2, 3, -1, 1, Q("5.113068 mm")))
sketch7.addConstraint(Sketcher.Constraint("DistanceX", -1, 1, 4, 3, Q("59.636932 mm")))
sketch7.setExpression("Constraints[14]", "Params.sketch7_diameter")
sketch7.setExpression("Constraints[15]", "Params.sketch7_diameter2")
pad5 = body.newObject("PartDesign::Pad", "Pad004")
pad5.Profile = sketch7
pad5.setExpression("Length", "Params.pad5_length")

sketch8 = body.newObject("Sketcher::SketchObject", "Sketch007")
sketch8.AttachmentSupport = (doc.getObject("XZ_Plane"), [""])
sketch8.MapMode = "FlatFace"
sketch8.AttachmentOffset = App.Placement(App.Vector(0, 0, -6), App.Rotation())
sketch8.addGeometry(Part.LineSegment(App.Vector(37, 0, 0), App.Vector(60, 0, 0)), False)
sketch8.addGeometry(Part.ArcOfCircle(Part.Circle(App.Vector(48, -16, 0), App.Vector(0, 0, 1), 20), math.radians(54), math.radians(126)), False)
sketch8.addGeometry(Part.LineSegment(App.Vector(60, -32, 0), App.Vector(37, -32, 0)), False)
sketch8.addGeometry(Part.ArcOfCircle(Part.Circle(App.Vector(48, -16, 0), App.Vector(0, 0, 1), 20), math.radians(-126), math.radians(-54)), False)
sketch8.addConstraint(Sketcher.Constraint("Coincident", 0, 1, 1, 2))
sketch8.addConstraint(Sketcher.Constraint("Coincident", 1, 1, 0, 2))
sketch8.addConstraint(Sketcher.Constraint("Coincident", 2, 1, 3, 2))
sketch8.addConstraint(Sketcher.Constraint("Coincident", 3, 1, 2, 2))
sketch8.addConstraint(Sketcher.Constraint("Horizontal", 0))
sketch8.addConstraint(Sketcher.Constraint("Horizontal", 2))
sketch8.addConstraint(Sketcher.Constraint("Coincident", 3, 3, 1, 3))
sketch8.addConstraint(Sketcher.Constraint("Equal", 1, 3))
sketch8.addConstraint(Sketcher.Constraint("PointOnObject", 0, 1, -1))
sketch8.addConstraint(Sketcher.Constraint("Vertical", 1, 1, 2, 1))
sketch8.addConstraint(Sketcher.Constraint("Radius", 1, Q("20 mm")))
sketch8.addConstraint(Sketcher.Constraint("DistanceX", -1, 1, 1, 3, Q("48.5 mm")))
sketch8.addConstraint(Sketcher.Constraint("DistanceY", 2, 1, -1, 1, Q("32.5 mm")))
sketch8.setExpression("Constraints[10]", "Params.sketch8_radius")
pocket2 = body.newObject("PartDesign::Pocket", "Pocket001")
pocket2.Profile = sketch8
pocket2.setExpression("Length", "Params.pocket2_length")

doc.recompute()
